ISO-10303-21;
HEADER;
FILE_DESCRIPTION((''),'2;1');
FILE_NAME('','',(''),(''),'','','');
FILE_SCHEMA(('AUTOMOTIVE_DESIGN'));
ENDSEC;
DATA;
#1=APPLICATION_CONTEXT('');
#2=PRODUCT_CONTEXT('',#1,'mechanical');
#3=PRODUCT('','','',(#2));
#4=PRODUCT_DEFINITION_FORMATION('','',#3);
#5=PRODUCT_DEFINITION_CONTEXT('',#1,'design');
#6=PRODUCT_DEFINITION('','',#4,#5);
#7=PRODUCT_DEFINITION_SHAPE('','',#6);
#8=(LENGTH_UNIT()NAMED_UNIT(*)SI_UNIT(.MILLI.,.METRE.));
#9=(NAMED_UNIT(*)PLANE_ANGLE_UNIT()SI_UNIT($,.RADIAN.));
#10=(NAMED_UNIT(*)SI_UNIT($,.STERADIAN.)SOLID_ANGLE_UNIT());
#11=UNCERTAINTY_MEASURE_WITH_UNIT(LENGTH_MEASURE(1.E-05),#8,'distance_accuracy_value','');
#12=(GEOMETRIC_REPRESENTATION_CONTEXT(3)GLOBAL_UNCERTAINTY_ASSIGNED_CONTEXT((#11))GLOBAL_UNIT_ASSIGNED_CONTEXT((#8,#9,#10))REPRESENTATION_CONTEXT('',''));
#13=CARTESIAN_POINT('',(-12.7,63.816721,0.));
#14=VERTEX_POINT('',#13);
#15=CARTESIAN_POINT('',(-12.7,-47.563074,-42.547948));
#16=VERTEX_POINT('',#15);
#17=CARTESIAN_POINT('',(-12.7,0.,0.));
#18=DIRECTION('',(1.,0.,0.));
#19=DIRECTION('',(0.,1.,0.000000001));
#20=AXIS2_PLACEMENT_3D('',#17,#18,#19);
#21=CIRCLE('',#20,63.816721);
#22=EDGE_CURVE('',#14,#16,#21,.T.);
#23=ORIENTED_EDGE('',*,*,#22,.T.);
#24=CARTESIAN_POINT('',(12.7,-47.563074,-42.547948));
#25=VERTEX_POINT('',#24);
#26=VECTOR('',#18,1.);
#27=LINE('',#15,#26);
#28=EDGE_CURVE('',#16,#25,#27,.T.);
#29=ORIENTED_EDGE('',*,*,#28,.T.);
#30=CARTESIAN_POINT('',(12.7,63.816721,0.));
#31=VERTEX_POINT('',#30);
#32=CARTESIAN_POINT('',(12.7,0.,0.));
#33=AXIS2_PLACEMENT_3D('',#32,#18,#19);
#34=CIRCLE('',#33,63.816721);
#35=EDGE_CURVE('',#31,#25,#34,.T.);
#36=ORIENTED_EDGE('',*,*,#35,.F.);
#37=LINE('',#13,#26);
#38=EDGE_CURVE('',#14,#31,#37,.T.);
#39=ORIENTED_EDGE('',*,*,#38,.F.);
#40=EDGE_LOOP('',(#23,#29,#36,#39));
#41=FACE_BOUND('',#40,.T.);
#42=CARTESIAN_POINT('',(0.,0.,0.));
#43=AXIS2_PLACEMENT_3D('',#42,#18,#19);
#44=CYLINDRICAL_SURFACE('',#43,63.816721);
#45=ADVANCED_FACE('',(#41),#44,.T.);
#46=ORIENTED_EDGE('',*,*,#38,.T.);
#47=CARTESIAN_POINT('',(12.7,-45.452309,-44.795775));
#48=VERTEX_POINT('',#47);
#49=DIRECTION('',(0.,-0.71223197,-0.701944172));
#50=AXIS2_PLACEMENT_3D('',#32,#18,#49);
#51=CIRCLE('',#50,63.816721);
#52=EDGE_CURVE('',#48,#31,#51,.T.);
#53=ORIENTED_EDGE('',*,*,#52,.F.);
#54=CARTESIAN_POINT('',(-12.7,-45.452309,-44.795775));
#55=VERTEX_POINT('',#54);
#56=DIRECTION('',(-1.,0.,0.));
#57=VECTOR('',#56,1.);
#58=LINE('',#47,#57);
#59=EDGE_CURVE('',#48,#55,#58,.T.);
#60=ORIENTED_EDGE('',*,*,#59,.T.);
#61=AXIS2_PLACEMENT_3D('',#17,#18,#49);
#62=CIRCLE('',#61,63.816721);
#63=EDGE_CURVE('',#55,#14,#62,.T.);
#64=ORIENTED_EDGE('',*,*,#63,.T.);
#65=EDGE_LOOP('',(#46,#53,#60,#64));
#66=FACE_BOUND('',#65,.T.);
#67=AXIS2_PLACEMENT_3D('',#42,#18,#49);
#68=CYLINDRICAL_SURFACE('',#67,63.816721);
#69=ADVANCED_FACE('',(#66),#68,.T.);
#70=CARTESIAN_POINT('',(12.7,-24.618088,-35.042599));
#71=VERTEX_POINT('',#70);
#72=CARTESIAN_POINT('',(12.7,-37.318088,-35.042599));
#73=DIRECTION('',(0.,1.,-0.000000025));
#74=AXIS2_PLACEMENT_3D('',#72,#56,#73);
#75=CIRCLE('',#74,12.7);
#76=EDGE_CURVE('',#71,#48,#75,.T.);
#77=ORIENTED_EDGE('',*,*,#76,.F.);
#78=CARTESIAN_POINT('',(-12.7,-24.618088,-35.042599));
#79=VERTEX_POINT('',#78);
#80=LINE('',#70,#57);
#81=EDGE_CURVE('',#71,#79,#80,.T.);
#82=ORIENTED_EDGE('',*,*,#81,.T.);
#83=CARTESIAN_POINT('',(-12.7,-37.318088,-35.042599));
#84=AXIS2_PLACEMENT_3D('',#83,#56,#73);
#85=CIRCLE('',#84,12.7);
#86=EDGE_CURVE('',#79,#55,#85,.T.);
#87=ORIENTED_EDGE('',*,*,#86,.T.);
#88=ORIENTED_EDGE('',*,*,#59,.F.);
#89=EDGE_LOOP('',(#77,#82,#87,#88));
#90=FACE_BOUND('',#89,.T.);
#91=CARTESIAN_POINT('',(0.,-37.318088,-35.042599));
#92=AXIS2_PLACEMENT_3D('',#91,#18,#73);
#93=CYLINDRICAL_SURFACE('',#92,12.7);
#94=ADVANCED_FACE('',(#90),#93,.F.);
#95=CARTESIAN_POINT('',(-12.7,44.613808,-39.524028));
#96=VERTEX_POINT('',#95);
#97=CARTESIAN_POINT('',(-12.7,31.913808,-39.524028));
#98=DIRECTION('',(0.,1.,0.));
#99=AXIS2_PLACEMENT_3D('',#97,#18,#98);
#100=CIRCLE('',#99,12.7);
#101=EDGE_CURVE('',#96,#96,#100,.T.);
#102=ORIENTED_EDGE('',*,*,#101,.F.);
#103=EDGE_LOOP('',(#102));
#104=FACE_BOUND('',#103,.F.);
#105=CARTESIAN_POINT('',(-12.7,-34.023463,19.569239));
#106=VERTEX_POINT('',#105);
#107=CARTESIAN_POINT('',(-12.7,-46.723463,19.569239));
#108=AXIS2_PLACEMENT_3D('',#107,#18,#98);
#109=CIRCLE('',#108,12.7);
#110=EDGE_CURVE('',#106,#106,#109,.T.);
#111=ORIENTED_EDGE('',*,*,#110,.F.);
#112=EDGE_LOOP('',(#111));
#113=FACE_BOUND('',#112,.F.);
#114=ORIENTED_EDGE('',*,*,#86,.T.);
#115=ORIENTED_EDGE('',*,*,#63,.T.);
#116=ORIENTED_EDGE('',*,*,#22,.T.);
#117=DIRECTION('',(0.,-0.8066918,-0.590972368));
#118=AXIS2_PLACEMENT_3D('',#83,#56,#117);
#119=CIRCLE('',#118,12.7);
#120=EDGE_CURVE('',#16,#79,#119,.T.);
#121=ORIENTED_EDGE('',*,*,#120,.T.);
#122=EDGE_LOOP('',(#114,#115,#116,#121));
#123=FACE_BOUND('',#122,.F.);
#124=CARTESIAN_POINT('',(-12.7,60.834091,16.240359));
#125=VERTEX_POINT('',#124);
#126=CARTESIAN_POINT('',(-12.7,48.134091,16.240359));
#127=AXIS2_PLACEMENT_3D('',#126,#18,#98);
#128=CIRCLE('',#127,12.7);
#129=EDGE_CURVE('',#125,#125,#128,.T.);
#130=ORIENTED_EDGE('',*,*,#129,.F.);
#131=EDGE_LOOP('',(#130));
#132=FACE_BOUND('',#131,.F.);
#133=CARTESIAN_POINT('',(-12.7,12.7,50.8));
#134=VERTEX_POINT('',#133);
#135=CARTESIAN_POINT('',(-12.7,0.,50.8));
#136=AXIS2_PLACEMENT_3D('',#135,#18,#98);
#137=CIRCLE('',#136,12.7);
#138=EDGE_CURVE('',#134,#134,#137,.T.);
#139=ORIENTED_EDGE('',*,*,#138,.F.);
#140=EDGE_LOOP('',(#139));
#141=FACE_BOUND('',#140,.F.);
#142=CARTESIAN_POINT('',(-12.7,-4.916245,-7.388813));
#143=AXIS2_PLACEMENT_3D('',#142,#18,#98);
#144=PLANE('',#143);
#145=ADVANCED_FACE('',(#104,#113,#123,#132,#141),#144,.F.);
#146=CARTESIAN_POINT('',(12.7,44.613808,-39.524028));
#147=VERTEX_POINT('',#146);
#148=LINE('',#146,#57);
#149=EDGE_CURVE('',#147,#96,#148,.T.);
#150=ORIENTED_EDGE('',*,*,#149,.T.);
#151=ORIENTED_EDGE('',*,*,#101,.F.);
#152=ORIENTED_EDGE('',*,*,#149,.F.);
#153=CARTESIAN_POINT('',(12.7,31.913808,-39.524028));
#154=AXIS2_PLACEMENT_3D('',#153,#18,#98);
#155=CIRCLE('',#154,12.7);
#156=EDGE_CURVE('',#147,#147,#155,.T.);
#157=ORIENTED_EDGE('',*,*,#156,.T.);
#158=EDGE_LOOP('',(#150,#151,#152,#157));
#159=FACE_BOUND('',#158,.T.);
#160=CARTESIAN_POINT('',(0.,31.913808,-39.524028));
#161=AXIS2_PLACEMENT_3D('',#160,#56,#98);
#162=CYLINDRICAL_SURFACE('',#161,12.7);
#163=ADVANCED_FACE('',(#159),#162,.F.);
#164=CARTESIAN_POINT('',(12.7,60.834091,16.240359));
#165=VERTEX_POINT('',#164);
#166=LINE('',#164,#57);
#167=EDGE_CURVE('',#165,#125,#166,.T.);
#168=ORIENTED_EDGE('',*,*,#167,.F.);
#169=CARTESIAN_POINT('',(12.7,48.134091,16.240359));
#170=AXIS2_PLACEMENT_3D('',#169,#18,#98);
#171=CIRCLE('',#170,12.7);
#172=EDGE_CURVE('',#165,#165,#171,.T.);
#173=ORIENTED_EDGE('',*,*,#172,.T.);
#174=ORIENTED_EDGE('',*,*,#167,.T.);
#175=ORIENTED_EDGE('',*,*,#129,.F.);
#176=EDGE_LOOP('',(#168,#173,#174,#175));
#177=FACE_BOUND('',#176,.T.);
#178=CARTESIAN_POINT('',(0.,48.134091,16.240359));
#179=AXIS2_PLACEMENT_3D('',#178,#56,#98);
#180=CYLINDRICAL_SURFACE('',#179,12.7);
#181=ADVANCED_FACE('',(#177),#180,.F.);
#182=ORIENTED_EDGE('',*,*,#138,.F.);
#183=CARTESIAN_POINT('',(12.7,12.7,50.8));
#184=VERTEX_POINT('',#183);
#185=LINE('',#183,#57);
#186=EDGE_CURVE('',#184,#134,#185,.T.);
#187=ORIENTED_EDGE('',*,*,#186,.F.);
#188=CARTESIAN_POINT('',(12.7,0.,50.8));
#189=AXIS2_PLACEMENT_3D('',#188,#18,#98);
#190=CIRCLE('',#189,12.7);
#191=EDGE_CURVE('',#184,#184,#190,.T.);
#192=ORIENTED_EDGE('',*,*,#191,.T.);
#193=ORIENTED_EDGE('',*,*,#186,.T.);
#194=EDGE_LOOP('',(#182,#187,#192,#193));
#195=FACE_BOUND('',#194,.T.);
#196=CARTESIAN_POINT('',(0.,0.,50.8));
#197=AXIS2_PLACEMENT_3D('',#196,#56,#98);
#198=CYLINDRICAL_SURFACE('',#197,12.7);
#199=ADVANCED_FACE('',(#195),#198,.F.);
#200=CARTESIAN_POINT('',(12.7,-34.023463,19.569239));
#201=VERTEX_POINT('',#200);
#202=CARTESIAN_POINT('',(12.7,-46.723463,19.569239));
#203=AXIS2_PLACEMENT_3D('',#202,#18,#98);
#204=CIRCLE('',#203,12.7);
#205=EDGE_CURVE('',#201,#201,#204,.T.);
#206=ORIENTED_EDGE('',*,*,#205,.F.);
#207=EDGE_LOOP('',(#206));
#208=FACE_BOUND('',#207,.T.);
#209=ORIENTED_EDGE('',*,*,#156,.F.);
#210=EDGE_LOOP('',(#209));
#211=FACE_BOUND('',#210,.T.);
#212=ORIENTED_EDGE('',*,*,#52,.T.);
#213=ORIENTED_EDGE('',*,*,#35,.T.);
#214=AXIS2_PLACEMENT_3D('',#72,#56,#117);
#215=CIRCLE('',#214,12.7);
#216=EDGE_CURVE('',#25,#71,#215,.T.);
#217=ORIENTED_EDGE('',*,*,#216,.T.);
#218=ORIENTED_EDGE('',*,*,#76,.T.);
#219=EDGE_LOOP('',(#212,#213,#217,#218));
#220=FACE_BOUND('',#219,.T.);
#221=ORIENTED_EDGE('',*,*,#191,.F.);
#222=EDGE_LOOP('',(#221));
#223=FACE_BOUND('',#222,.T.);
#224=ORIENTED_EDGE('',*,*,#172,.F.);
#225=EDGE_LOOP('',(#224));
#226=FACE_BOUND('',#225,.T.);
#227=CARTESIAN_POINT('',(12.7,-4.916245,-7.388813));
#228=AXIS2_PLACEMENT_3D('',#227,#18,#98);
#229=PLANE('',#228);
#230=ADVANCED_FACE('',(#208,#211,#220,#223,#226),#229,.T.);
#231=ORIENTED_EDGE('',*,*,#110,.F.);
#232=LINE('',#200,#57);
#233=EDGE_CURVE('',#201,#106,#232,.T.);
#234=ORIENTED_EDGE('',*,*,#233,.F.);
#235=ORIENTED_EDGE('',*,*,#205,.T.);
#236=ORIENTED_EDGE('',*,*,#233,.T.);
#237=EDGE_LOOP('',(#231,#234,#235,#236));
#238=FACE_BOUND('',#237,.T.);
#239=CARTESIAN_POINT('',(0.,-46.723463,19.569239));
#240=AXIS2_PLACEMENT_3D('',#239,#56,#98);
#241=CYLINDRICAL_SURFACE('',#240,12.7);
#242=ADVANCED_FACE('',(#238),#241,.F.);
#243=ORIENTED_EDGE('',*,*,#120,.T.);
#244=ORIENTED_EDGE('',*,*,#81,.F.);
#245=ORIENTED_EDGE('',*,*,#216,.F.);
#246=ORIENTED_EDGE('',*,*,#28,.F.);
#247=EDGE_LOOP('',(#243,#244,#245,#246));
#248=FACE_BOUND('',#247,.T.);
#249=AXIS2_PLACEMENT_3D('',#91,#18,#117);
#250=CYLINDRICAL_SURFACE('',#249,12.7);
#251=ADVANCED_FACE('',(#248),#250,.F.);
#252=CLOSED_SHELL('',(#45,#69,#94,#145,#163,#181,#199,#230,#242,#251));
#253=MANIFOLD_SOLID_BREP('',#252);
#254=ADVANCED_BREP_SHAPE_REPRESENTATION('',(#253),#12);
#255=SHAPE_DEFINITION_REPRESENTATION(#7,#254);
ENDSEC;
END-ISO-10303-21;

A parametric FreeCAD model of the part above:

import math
import FreeCAD as App
import Part
import Sketcher
from FreeCAD import Vector
Q = App.Units.Quantity

doc = App.newDocument("Part")
body = doc.addObject("PartDesign::Body", "Body")

sketch1 = body.newObject("Sketcher::SketchObject", "Sketch")
sketch1.AttachmentSupport = (doc.getObject("YZ_Plane"), [""])
sketch1.MapMode = "FlatFace"
sketch1.addGeometry(Part.ArcOfCircle(Part.Circle(Vector(0, 0, 0), Vector(0, 0, 1), 64), math.radians(-135), math.radians(0)), False)
sketch1.addGeometry(Part.ArcOfCircle(Part.Circle(Vector(0, 0, 0), Vector(0, 0, 1), 64), math.radians(0), math.radians(222)), False)
sketch1.addGeometry(Part.ArcOfCircle(Part.Circle(Vector(-37, -35, 0), Vector(0, 0, 1), 13), math.radians(0), math.radians(216)), False)
sketch1.addGeometry(Part.ArcOfCircle(Part.Circle(Vector(-37, -35, 0), Vector(0, 0, 1), 13), math.radians(-130), math.radians(0)), False)
sketch1.addGeometry(Part.Circle(Vector(32, -40, 0), Vector(0, 0, 1), 13), False)
sketch1.addGeometry(Part.Circle(Vector(-47, 20, 0), Vector(0, 0, 1), 13), False)
sketch1.addGeometry(Part.Circle(Vector(0, 51, 0), Vector(0, 0, 1), 13), False)
sketch1.addGeometry(Part.Circle(Vector(48, 16, 0), Vector(0, 0, 1), 13), False)
sketch1.addConstraint(Sketcher.Constraint("Tangent", 0, 2, 1, 1))
sketch1.addConstraint(Sketcher.Constraint("Coincident", 1, 2, 2, 2))
sketch1.addConstraint(Sketcher.Constraint("Tangent", 2, 1, 3, 2))
sketch1.addConstraint(Sketcher.Constraint("Coincident", 3, 1, 0, 1))
sketch1.addConstraint(Sketcher.Constraint("Coincident", 0, 3, -1, 1))
sketch1.addConstraint(Sketcher.Constraint("Equal", 0, 1))
sketch1.addConstraint(Sketcher.Constraint("Equal", 2, 3))
sketch1.addConstraint(Sketcher.Constraint("Equal", 3, 4))
sketch1.addConstraint(Sketcher.Constraint("Equal", 4, 5))
sketch1.addConstraint(Sketcher.Constraint("Equal", 5, 6))
sketch1.addConstraint(Sketcher.Constraint("Equal", 6, 7))
sketch1.addConstraint(Sketcher.Constraint("PointOnObject", 6, 3, -2))
sketch1.addConstraint(Sketcher.Constraint("PointOnObject", 0, 2, -1))
sketch1.addConstraint(Sketcher.Constraint("Horizontal", 3, 3, 2, 1))
sketch1.addConstraint(Sketcher.Constraint("Diameter", 4, Q("1 in")))
sketch1.addConstraint(Sketcher.Constraint("DistanceY", -1, 1, 6, 3, Q("2 in")))
sketch1.addConstraint(Sketcher.Constraint("Radius", 0, Q("63.816721 mm")))
sketch1.addConstraint(Sketcher.Constraint("DistanceY", 2, 3, -1, 1, Q("35.042599 mm")))
sketch1.addConstraint(Sketcher.Constraint("DistanceX", 2, 3, -1, 1, Q("37.318088 mm")))
sketch1.addConstraint(Sketcher.Constraint("DistanceY", -1, 1, 5, 3, Q("19.569239 mm")))
sketch1.addConstraint(Sketcher.Constraint("DistanceX", -1, 1, 7, 3, Q("48.134091 mm")))
sketch1.addConstraint(Sketcher.Constraint("DistanceY", -1, 1, 7, 3, Q("16.240359 mm")))
sketch1.addConstraint(Sketcher.Constraint("DistanceX", 1, 3, 4, 3, Q("31.913808 mm")))
sketch1.addConstraint(Sketcher.Constraint("DistanceY", 4, 3, 0, 3, Q("39.524028 mm")))
sketch1.addConstraint(Sketcher.Constraint("DistanceX", 5, 3, 4, 3, Q("78.637271 mm")))
pad1 = body.newObject("PartDesign::Pad", "Pad")
pad1.Profile = sketch1
pad1.Length = Q("1 in")
pad1.Midplane = True

doc.recompute()
